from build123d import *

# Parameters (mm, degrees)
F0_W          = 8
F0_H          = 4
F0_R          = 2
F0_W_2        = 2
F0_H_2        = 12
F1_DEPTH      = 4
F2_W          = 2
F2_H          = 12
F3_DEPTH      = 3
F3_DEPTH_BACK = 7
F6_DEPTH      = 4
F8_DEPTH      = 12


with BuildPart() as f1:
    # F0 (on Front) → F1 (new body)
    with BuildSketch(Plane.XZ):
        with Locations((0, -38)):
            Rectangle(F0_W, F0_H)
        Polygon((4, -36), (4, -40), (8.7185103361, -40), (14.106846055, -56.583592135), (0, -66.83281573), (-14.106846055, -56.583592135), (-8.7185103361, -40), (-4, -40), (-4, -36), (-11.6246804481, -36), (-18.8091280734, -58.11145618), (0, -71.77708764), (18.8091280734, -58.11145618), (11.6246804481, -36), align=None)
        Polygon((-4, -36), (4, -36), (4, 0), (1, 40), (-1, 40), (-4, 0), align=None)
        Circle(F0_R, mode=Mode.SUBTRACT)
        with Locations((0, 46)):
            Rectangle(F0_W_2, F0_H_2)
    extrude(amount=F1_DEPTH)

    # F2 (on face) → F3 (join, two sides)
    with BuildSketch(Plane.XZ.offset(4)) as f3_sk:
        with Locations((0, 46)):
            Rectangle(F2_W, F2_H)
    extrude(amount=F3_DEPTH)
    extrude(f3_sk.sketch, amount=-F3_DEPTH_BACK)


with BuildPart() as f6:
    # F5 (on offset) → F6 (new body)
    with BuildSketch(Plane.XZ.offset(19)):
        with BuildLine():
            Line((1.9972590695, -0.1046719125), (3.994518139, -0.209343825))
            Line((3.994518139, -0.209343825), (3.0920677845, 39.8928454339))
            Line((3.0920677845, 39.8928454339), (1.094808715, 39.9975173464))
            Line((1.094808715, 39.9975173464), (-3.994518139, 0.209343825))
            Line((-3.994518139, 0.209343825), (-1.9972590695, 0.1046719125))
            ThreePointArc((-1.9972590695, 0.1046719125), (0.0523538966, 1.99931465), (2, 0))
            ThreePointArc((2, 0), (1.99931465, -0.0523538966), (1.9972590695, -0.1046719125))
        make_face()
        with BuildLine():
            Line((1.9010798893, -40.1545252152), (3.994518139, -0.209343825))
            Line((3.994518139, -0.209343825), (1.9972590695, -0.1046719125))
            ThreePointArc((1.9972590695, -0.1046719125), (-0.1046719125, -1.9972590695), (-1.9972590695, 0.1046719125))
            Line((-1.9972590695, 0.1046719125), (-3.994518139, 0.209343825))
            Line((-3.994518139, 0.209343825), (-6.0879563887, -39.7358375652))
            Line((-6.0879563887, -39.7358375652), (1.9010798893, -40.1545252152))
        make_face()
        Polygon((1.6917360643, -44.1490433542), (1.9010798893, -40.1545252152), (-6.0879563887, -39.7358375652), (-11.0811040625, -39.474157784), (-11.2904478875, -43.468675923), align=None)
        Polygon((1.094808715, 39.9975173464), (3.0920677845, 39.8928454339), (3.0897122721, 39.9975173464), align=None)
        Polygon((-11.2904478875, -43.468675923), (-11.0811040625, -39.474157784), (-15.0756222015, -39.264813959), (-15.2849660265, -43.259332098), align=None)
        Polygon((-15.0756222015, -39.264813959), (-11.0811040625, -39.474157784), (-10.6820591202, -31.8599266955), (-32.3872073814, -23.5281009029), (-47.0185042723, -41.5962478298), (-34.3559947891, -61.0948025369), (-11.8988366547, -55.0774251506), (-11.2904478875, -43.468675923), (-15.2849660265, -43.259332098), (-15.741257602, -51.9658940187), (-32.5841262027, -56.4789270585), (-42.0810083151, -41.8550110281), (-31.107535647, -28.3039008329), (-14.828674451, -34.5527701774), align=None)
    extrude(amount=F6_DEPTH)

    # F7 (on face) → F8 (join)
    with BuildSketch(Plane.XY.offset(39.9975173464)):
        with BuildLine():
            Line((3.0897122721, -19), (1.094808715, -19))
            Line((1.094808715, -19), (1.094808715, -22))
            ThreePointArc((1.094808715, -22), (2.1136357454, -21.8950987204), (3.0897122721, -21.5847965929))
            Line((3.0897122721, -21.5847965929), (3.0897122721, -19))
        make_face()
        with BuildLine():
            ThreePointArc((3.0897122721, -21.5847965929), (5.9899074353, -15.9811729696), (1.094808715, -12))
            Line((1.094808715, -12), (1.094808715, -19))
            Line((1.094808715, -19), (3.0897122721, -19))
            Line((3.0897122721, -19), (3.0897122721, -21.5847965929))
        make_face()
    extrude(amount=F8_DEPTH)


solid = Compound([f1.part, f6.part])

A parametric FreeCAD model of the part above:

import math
import FreeCAD as App
import Part
import Sketcher
from FreeCAD import Vector
Q = App.Units.Quantity

doc = App.newDocument("Part")
params = doc.addObject("Spreadsheet::Sheet", "Params")
for row, (alias, value) in enumerate([
    ("sketch1_diameter", "4 mm"),
    ("sketch1_width", "2 mm"),
    ("sketch1_height", "36 mm"),
    ("sketch1_height2", "12 mm"),
    ("pad1_length", "4 mm"),
    ("sketch2_width", "2 mm"),
    ("sketch2_height", "12 mm"),
    ("pad2_length", "3 mm"),
    ("pad2_length2", "7 mm"),
    ("sketch3_radius", "2 mm"),
    ("sketch3_length", "40 mm"),
    ("sketch3_length2", "5 mm"),
    ("sketch3_length3", "13 mm"),
    ("sketch3_length4", "4 mm"),
    ("pad3_length", "4 mm"),
    ("sketch4_radius", "5 mm"),
    ("pad4_length", "12 mm"),
], start=1):
    params.set(f"A{row}", alias)
    params.set(f"B{row}", "=" + value)
    params.setAlias(f"B{row}", alias)

body = doc.addObject("PartDesign::Body", "Body")

sketch1 = body.newObject("Sketcher::SketchObject", "Sketch")
sketch1.AttachmentSupport = (doc.getObject("XZ_Plane"), [""])
sketch1.MapMode = "FlatFace"
sketch1.addGeometry(Part.LineSegment(Vector(-11.6, -36, 0), Vector(-18.8, -58.1, 0)), False)
sketch1.addGeometry(Part.LineSegment(Vector(-18.8, -58.1, 0), Vector(0, -71.8, 0)), False)
sketch1.addGeometry(Part.LineSegment(Vector(0, -71.8, 0), Vector(18.8, -58.1, 0)), False)
sketch1.addGeometry(Part.LineSegment(Vector(18.8, -58.1, 0), Vector(11.6, -36, 0)), False)
sketch1.addGeometry(Part.LineSegment(Vector(11.6, -36, 0), Vector(4, -36, 0)), False)
sketch1.addGeometry(Part.LineSegment(Vector(4, -36, 0), Vector(4, 0, 0)), False)
sketch1.addGeometry(Part.LineSegment(Vector(4, 0, 0), Vector(1, 40, 0)), False)
sketch1.addGeometry(Part.LineSegment(Vector(1, 40, 0), Vector(1, 52, 0)), False)
sketch1.addGeometry(Part.LineSegment(Vector(1, 52, 0), Vector(-1, 52, 0)), False)
sketch1.addGeometry(Part.LineSegment(Vector(-1, 52, 0), Vector(-1, 40, 0)), False)
sketch1.addGeometry(Part.LineSegment(Vector(-1, 40, 0), Vector(-4, 0, 0)), False)
sketch1.addGeometry(Part.LineSegment(Vector(-4, 0, 0), Vector(-4, -36, 0)), False)
sketch1.addGeometry(Part.LineSegment(Vector(-4, -36, 0), Vector(-11.6, -36, 0)), False)
sketch1.addGeometry(Part.LineSegment(Vector(8.7, -40, 0), Vector(14.1, -56.6, 0)), False)
sketch1.addGeometry(Part.LineSegment(Vector(14.1, -56.6, 0), Vector(0, -66.8, 0)), False)
sketch1.addGeometry(Part.LineSegment(Vector(0, -66.8, 0), Vector(-14.1, -56.6, 0)), False)
sketch1.addGeometry(Part.LineSegment(Vector(-14.1, -56.6, 0), Vector(-8.7, -40, 0)), False)
sketch1.addGeometry(Part.LineSegment(Vector(-8.7, -40, 0), Vector(8.7, -40, 0)), False)
sketch1.addGeometry(Part.Circle(Vector(0, 0, 0), Vector(0, 0, 1), 2), False)
sketch1.addConstraint(Sketcher.Constraint("Coincident", 0, 2, 1, 1))
sketch1.addConstraint(Sketcher.Constraint("Coincident", 1, 2, 2, 1))
sketch1.addConstraint(Sketcher.Constraint("Coincident", 2, 2, 3, 1))
sketch1.addConstraint(Sketcher.Constraint("Coincident", 3, 2, 4, 1))
sketch1.addConstraint(Sketcher.Constraint("Coincident", 4, 2, 5, 1))
sketch1.addConstraint(Sketcher.Constraint("Coincident", 5, 2, 6, 1))
sketch1.addConstraint(Sketcher.Constraint("Coincident", 6, 2, 7, 1))
sketch1.addConstraint(Sketcher.Constraint("Coincident", 7, 2, 8, 1))
sketch1.addConstraint(Sketcher.Constraint("Coincident", 8, 2, 9, 1))
sketch1.addConstraint(Sketcher.Constraint("Coincident", 9, 2, 10, 1))
sketch1.addConstraint(Sketcher.Constraint("Coincident", 10, 2, 11, 1))
sketch1.addConstraint(Sketcher.Constraint("Coincident", 11, 2, 12, 1))
sketch1.addConstraint(Sketcher.Constraint("Coincident", 12, 2, 0, 1))
sketch1.addConstraint(Sketcher.Constraint("Coincident", 13, 2, 14, 1))
sketch1.addConstraint(Sketcher.Constraint("Coincident", 14, 2, 15, 1))
sketch1.addConstraint(Sketcher.Constraint("Coincident", 15, 2, 16, 1))
sketch1.addConstraint(Sketcher.Constraint("Coincident", 16, 2, 17, 1))
sketch1.addConstraint(Sketcher.Constraint("Coincident", 17, 2, 13, 1))
sketch1.addConstraint(Sketcher.Constraint("Horizontal", 4))
sketch1.addConstraint(Sketcher.Constraint("Vertical", 5))
sketch1.addConstraint(Sketcher.Constraint("Vertical", 7))
sketch1.addConstraint(Sketcher.Constraint("Horizontal", 8))
sketch1.addConstraint(Sketcher.Constraint("Vertical", 9))
sketch1.addConstraint(Sketcher.Constraint("Vertical", 11))
sketch1.addConstraint(Sketcher.Constraint("Horizontal", 12))
sketch1.addConstraint(Sketcher.Constraint("Horizontal", 17))
sketch1.addConstraint(Sketcher.Constraint("Coincident", 18, 3, -1, 1))
sketch1.addConstraint(Sketcher.Constraint("Symmetric", 5, 2, 10, 2, -1, 1))
sketch1.addConstraint(Sketcher.Constraint("Symmetric", 0, 2, 2, 2, -2))
sketch1.addConstraint(Sketcher.Constraint("Symmetric", 6, 2, 9, 2, -2))
sketch1.addConstraint(Sketcher.Constraint("Symmetric", 3, 2, 12, 2, -2))
sketch1.addConstraint(Sketcher.Constraint("Symmetric", 13, 2, 15, 2, -2))
sketch1.addConstraint(Sketcher.Constraint("PointOnObject", 1, 2, -2))
sketch1.addConstraint(Sketcher.Constraint("PointOnObject", 5, 2, -1))
sketch1.addConstraint(Sketcher.Constraint("PointOnObject", 14, 2, -2))
sketch1.addConstraint(Sketcher.Constraint("Parallel", 3, 13))
sketch1.addConstraint(Sketcher.Constraint("Parallel", 2, 14))
sketch1.addConstraint(Sketcher.Constraint("Parallel", 0, 16))
sketch1.addConstraint(Sketcher.Constraint("Equal", 0, 1))
sketch1.addConstraint(Sketcher.Constraint("Equal", 13, 14))
sketch1.addConstraint(Sketcher.Constraint("Diameter", 18, Q("4 mm")))
sketch1.addConstraint(Sketcher.Constraint("DistanceX", 8, 2, 8, 1, Q("2 mm")))
sketch1.addConstraint(Sketcher.Constraint("DistanceY", 5, 1, 5, 2, Q("36 mm")))
sketch1.addConstraint(Sketcher.Constraint("DistanceY", 7, 1, 7, 2, Q("12 mm")))
sketch1.addConstraint(Sketcher.Constraint("Angle", 0, Q("-108 deg")))
sketch1.addConstraint(Sketcher.Constraint("Angle", 1, Q("-36 deg")))
sketch1.addConstraint(Sketcher.Constraint("DistanceX", -1, 1, 4, 2, Q("4 mm")))
sketch1.addConstraint(Sketcher.Constraint("DistanceY", -1, 1, 6, 2, Q("40 mm")))
sketch1.addConstraint(Sketcher.Constraint("DistanceY", 16, 2, -1, 1, Q("40 mm")))
sketch1.addConstraint(Sketcher.Constraint("DistanceX", 4, 2, 4, 1, Q("7.62468 mm")))
sketch1.addConstraint(Sketcher.Constraint("DistanceX", 17, 1, 17, 2, Q("17.437021 mm")))
sketch1.setExpression("Constraints[40]", "Params.sketch1_diameter")
sketch1.setExpression("Constraints[41]", "Params.sketch1_width")
sketch1.setExpression("Constraints[42]", "Params.sketch1_height")
sketch1.setExpression("Constraints[43]", "Params.sketch1_height2")
pad1 = body.newObject("PartDesign::Pad", "Pad")
pad1.Profile = sketch1
pad1.setExpression("Length", "Params.pad1_length")

sketch2 = body.newObject("Sketcher::SketchObject", "Sketch001")
sketch2.AttachmentSupport = (doc.getObject("XZ_Plane"), [""])
sketch2.MapMode = "FlatFace"
sketch2.AttachmentOffset = App.Placement(Vector(0, 0, 4), App.Rotation())
sketch2.addGeometry(Part.LineSegment(Vector(-1, 52, 0), Vector(-1, 40, 0)), False)
sketch2.addGeometry(Part.LineSegment(Vector(-1, 40, 0), Vector(1, 40, 0)), False)
sketch2.addGeometry(Part.LineSegment(Vector(1, 40, 0), Vector(1, 52, 0)), False)
sketch2.addGeometry(Part.LineSegment(Vector(1, 52, 0), Vector(-1, 52, 0)), False)
sketch2.addConstraint(Sketcher.Constraint("Coincident", 0, 2, 1, 1))
sketch2.addConstraint(Sketcher.Constraint("Coincident", 1, 2, 2, 1))
sketch2.addConstraint(Sketcher.Constraint("Coincident", 2, 2, 3, 1))
sketch2.addConstraint(Sketcher.Constraint("Coincident", 3, 2, 0, 1))
sketch2.addConstraint(Sketcher.Constraint("Vertical", 0))
sketch2.addConstraint(Sketcher.Constraint("Horizontal", 1))
sketch2.addConstraint(Sketcher.Constraint("Vertical", 2))
sketch2.addConstraint(Sketcher.Constraint("Horizontal", 3))
sketch2.addConstraint(Sketcher.Constraint("DistanceX", 1, 1, 1, 2, Q("2 mm")))
sketch2.addConstraint(Sketcher.Constraint("DistanceY", 0, 2, 0, 1, Q("12 mm")))
sketch2.addConstraint(Sketcher.Constraint("DistanceX", 0, 2, -1, 1, Q("1 mm")))
sketch2.addConstraint(Sketcher.Constraint("DistanceY", -1, 1, 0, 2, Q("40 mm")))
sketch2.setExpression("Constraints[8]", "Params.sketch2_width")
sketch2.setExpression("Constraints[9]", "Params.sketch2_height")
pad2 = body.newObject("PartDesign::Pad", "Pad001")
pad2.Profile = sketch2
pad2.Type = "TwoLengths"
pad2.setExpression("Length", "Params.pad2_length")
pad2.setExpression("Length2", "Params.pad2_length2")
body2 = doc.addObject("PartDesign::Body", "Body001")

sketch3 = body2.newObject("Sketcher::SketchObject", "Sketch002")
sketch3.AttachmentSupport = (doc.getObject("XZ_Plane001"), [""])
sketch3.MapMode = "FlatFace"
sketch3.AttachmentOffset = App.Placement(Vector(0, 0, 19), App.Rotation())
sketch3.addGeometry(Part.LineSegment(Vector(3.99, -0.21, 0), Vector(3.09, 39.89, 0)), False)
sketch3.addGeometry(Part.LineSegment(Vector(3.09, 39.89, 0), Vector(3.09, 40, 0)), False)
sketch3.addGeometry(Part.LineSegment(Vector(3.09, 40, 0), Vector(1.09, 40, 0)), False)
sketch3.addGeometry(Part.LineSegment(Vector(1.09, 40, 0), Vector(-3.99, 0.21, 0)), False)
sketch3.addGeometry(Part.LineSegment(Vector(-3.99, 0.21, 0), Vector(-6.09, -39.74, 0)), False)
sketch3.addGeometry(Part.LineSegment(Vector(-6.09, -39.74, 0), Vector(-11.08, -39.47, 0)), False)
sketch3.addGeometry(Part.LineSegment(Vector(-11.08, -39.47, 0), Vector(-10.68, -31.86, 0)), False)
sketch3.addGeometry(Part.LineSegment(Vector(-10.68, -31.86, 0), Vector(-32.39, -23.53, 0)), False)
sketch3.addGeometry(Part.LineSegment(Vector(-32.39, -23.53, 0), Vector(-47.02, -41.6, 0)), False)
sketch3.addGeometry(Part.LineSegment(Vector(-47.02, -41.6, 0), Vector(-34.36, -61.09, 0)), False)
sketch3.addGeometry(Part.LineSegment(Vector(-34.36, -61.09, 0), Vector(-11.9, -55.08, 0)), False)
sketch3.addGeometry(Part.LineSegment(Vector(-11.9, -55.08, 0), Vector(-11.29, -43.47, 0)), False)
sketch3.addGeometry(Part.LineSegment(Vector(-11.29, -43.47, 0), Vector(1.69, -44.15, 0)), False)
sketch3.addGeometry(Part.LineSegment(Vector(1.69, -44.15, 0), Vector(1.9, -40.15, 0)), False)
sketch3.addGeometry(Part.LineSegment(Vector(1.9, -40.15, 0), Vector(3.99, -0.21, 0)), False)
sketch3.addGeometry(Part.LineSegment(Vector(-15.08, -39.26, 0), Vector(-15.28, -43.26, 0)), False)
sketch3.addGeometry(Part.LineSegment(Vector(-15.28, -43.26, 0), Vector(-15.74, -51.97, 0)), False)
sketch3.addGeometry(Part.LineSegment(Vector(-15.74, -51.97, 0), Vector(-32.58, -56.48, 0)), False)
sketch3.addGeometry(Part.LineSegment(Vector(-32.58, -56.48, 0), Vector(-42.08, -41.86, 0)), False)
sketch3.addGeometry(Part.LineSegment(Vector(-42.08, -41.86, 0), Vector(-31.11, -28.3, 0)), False)
sketch3.addGeometry(Part.LineSegment(Vector(-31.11, -28.3, 0), Vector(-14.83, -34.55, 0)), False)
sketch3.addGeometry(Part.LineSegment(Vector(-14.83, -34.55, 0), Vector(-15.08, -39.26, 0)), False)
sketch3.addGeometry(Part.ArcOfCircle(Part.Circle(Vector(0, 0, 0), Vector(0, 0, 1), 2), math.radians(0), math.radians(177)), False)
sketch3.addGeometry(Part.ArcOfCircle(Part.Circle(Vector(0, 0, 0), Vector(0, 0, 1), 2), math.radians(-3), math.radians(0)), False)
sketch3.addGeometry(Part.ArcOfCircle(Part.Circle(Vector(0, 0, 0), Vector(0, 0, 1), 2), math.radians(177), math.radians(357)), False)
sketch3.addConstraint(Sketcher.Constraint("Coincident", 0, 2, 1, 1))
sketch3.addConstraint(Sketcher.Constraint("Coincident", 1, 2, 2, 1))
sketch3.addConstraint(Sketcher.Constraint("Coincident", 2, 2, 3, 1))
sketch3.addConstraint(Sketcher.Constraint("Coincident", 3, 2, 4, 1))
sketch3.addConstraint(Sketcher.Constraint("Coincident", 4, 2, 5, 1))
sketch3.addConstraint(Sketcher.Constraint("Coincident", 5, 2, 6, 1))
sketch3.addConstraint(Sketcher.Constraint("Coincident", 6, 2, 7, 1))
sketch3.addConstraint(Sketcher.Constraint("Coincident", 7, 2, 8, 1))
sketch3.addConstraint(Sketcher.Constraint("Coincident", 8, 2, 9, 1))
sketch3.addConstraint(Sketcher.Constraint("Coincident", 9, 2, 10, 1))
sketch3.addConstraint(Sketcher.Constraint("Coincident", 10, 2, 11, 1))
sketch3.addConstraint(Sketcher.Constraint("Coincident", 11, 2, 12, 1))
sketch3.addConstraint(Sketcher.Constraint("Coincident", 12, 2, 13, 1))
sketch3.addConstraint(Sketcher.Constraint("Coincident", 13, 2, 14, 1))
sketch3.addConstraint(Sketcher.Constraint("Coincident", 14, 2, 0, 1))
sketch3.addConstraint(Sketcher.Constraint("Coincident", 15, 2, 16, 1))
sketch3.addConstraint(Sketcher.Constraint("Coincident", 16, 2, 17, 1))
sketch3.addConstraint(Sketcher.Constraint("Coincident", 17, 2, 18, 1))
sketch3.addConstraint(Sketcher.Constraint("Coincident", 18, 2, 19, 1))
sketch3.addConstraint(Sketcher.Constraint("Coincident", 19, 2, 20, 1))
sketch3.addConstraint(Sketcher.Constraint("Coincident", 20, 2, 21, 1))
sketch3.addConstraint(Sketcher.Constraint("Coincident", 21, 2, 15, 1))
sketch3.addConstraint(Sketcher.Constraint("Tangent", 22, 1, 23, 2))
sketch3.addConstraint(Sketcher.Constraint("Tangent", 23, 1, 24, 2))
sketch3.addConstraint(Sketcher.Constraint("Tangent", 24, 1, 22, 2))
sketch3.addConstraint(Sketcher.Constraint("Horizontal", 2))
sketch3.addConstraint(Sketcher.Constraint("Coincident", 22, 3, -1, 1))
sketch3.addConstraint(Sketcher.Constraint("Symmetric", 3, 2, 14, 2, -1, 1))
sketch3.addConstraint(Sketcher.Constraint("PointOnObject", 22, 1, -1))
sketch3.addConstraint(Sketcher.Constraint("Parallel", 0, 1))
sketch3.addConstraint(Sketcher.Constraint("Perpendicular", 4, 5))
sketch3.addConstraint(Sketcher.Constraint("Perpendicular", 5, 6))
sketch3.addConstraint(Sketcher.Constraint("Parallel", 6, 11))
sketch3.addConstraint(Sketcher.Constraint("Perpendicular", 11, 12))
sketch3.addConstraint(Sketcher.Constraint("Perpendicular", 12, 13))
sketch3.addConstraint(Sketcher.Constraint("Parallel", 13, 14))
sketch3.addConstraint(Sketcher.Constraint("Parallel", 14, 15))
sketch3.addConstraint(Sketcher.Constraint("Parallel", 15, 16))
sketch3.addConstraint(Sketcher.Constraint("Parallel", 10, 17))
sketch3.addConstraint(Sketcher.Constraint("Parallel", 9, 18))
sketch3.addConstraint(Sketcher.Constraint("Parallel", 8, 19))
sketch3.addConstraint(Sketcher.Constraint("Parallel", 7, 20))
sketch3.addConstraint(Sketcher.Constraint("Parallel", 16, 21))
sketch3.addConstraint(Sketcher.Constraint("Equal", 0, 3))
sketch3.addConstraint(Sketcher.Constraint("Equal", 7, 8))
sketch3.addConstraint(Sketcher.Constraint("Equal", 8, 9))
sketch3.addConstraint(Sketcher.Constraint("Equal", 9, 10))
sketch3.addConstraint(Sketcher.Constraint("Equal", 4, 14))
sketch3.addConstraint(Sketcher.Constraint("Equal", 13, 15))
sketch3.addConstraint(Sketcher.Constraint("Equal", 17, 18))
sketch3.addConstraint(Sketcher.Constraint("Equal", 18, 19))
sketch3.addConstraint(Sketcher.Constraint("Equal", 19, 20))
sketch3.addConstraint(Sketcher.Constraint("Radius", 22, Q("2 mm")))
sketch3.addConstraint(Sketcher.Constraint("Angle", 4, Q("-93 deg")))
sketch3.addConstraint(Sketcher.Constraint("Angle", 7, Q("159 deg")))
sketch3.addConstraint(Sketcher.Constraint("Angle", 8, Q("-129 deg")))
sketch3.addConstraint(Sketcher.Constraint("Angle", 9, Q("-57 deg")))
sketch3.addConstraint(Sketcher.Constraint("Distance", 4, Q("40 mm")))
sketch3.addConstraint(Sketcher.Constraint("Distance", 5, Q("5 mm")))
sketch3.addConstraint(Sketcher.Constraint("Distance", 12, Q("13 mm")))
sketch3.addConstraint(Sketcher.Constraint("Distance", 13, Q("4 mm")))
sketch3.addConstraint(Sketcher.Constraint("Distance", 1, Q("0.104698 mm")))
sketch3.addConstraint(Sketcher.Constraint("DistanceY", 7, 2, -1, 1, Q("23.528101 mm")))
sketch3.addConstraint(Sketcher.Constraint("DistanceY", 19, 2, -1, 1, Q("28.303901 mm")))
sketch3.addConstraint(Sketcher.Constraint("DistanceY", 3, 2, 0, 2, Q("39.683502 mm")))
sketch3.addConstraint(Sketcher.Constraint("DistanceX", 8, 2, 5, 2, Q("35.9374 mm")))
sketch3.addConstraint(Sketcher.Constraint("DistanceY", 13, 2, 6, 2, Q("8.294599 mm")))
sketch3.addConstraint(Sketcher.Constraint("DistanceX", 16, 2, 4, 2, Q("9.653301 mm")))
sketch3.addConstraint(Sketcher.Constraint("DistanceY", 17, 2, 10, 2, Q("1.401502 mm")))
sketch3.addConstraint(Sketcher.Constraint("Distance", 16, Q("8.71851 mm")))
sketch3.addConstraint(Sketcher.Constraint("DistanceX", 2, 2, 2, 1, Q("1.994904 mm")))
sketch3.addConstraint(Sketcher.Constraint("DistanceX", -1, 1, 23, 1, Q("1.997259 mm")))
sketch3.addConstraint(Sketcher.Constraint("DistanceX", 24, 1, -1, 1, Q("1.997259 mm")))
sketch3.setExpression("Constraints[52]", "Params.sketch3_radius")
sketch3.setExpression("Constraints[57]", "Params.sketch3_length")
sketch3.setExpression("Constraints[58]", "Params.sketch3_length2")
sketch3.setExpression("Constraints[59]", "Params.sketch3_length3")
sketch3.setExpression("Constraints[60]", "Params.sketch3_length4")
pad3 = body2.newObject("PartDesign::Pad", "Pad002")
pad3.Profile = sketch3
pad3.setExpression("Length", "Params.pad3_length")

sketch4 = body2.newObject("Sketcher::SketchObject", "Sketch003")
sketch4.AttachmentSupport = (doc.getObject("XY_Plane001"), [""])
sketch4.MapMode = "FlatFace"
sketch4.AttachmentOffset = App.Placement(Vector(0, 0, 39.997517), App.Rotation())
sketch4.addGeometry(Part.ArcOfCircle(Part.Circle(Vector(1.1, -17, 0), Vector(0, 0, 1), 5), math.radians(-90), math.radians(-66)), False)
sketch4.addGeometry(Part.ArcOfCircle(Part.Circle(Vector(1.1, -17, 0), Vector(0, 0, 1), 5), math.radians(-66), math.radians(90)), False)
sketch4.addGeometry(Part.LineSegment(Vector(1.1, -12, 0), Vector(1.1, -22, 0)), False)
sketch4.addConstraint(Sketcher.Constraint("Tangent", 0, 2, 1, 1))
sketch4.addConstraint(Sketcher.Constraint("Coincident", 1, 2, 2, 1))
sketch4.addConstraint(Sketcher.Constraint("Coincident", 2, 2, 0, 1))
sketch4.addConstraint(Sketcher.Constraint("Vertical", 2))
sketch4.addConstraint(Sketcher.Constraint("Equal", 0, 1))
sketch4.addConstraint(Sketcher.Constraint("Vertical", 0, 3, 1, 2))
sketch4.addConstraint(Sketcher.Constraint("Radius", 0, Q("5 mm")))
sketch4.addConstraint(Sketcher.Constraint("DistanceY", 0, 3, -1, 1, Q("17 mm")))
sketch4.addConstraint(Sketcher.Constraint("DistanceX", -1, 1, 0, 3, Q("1.094809 mm")))
sketch4.addConstraint(Sketcher.Constraint("DistanceX", -1, 1, 0, 2, Q("3.089712 mm")))
sketch4.setExpression("Constraints[6]", "Params.sketch4_radius")
pad4 = body2.newObject("PartDesign::Pad", "Pad003")
pad4.Profile = sketch4
pad4.setExpression("Length", "Params.pad4_length")

doc.recompute()
